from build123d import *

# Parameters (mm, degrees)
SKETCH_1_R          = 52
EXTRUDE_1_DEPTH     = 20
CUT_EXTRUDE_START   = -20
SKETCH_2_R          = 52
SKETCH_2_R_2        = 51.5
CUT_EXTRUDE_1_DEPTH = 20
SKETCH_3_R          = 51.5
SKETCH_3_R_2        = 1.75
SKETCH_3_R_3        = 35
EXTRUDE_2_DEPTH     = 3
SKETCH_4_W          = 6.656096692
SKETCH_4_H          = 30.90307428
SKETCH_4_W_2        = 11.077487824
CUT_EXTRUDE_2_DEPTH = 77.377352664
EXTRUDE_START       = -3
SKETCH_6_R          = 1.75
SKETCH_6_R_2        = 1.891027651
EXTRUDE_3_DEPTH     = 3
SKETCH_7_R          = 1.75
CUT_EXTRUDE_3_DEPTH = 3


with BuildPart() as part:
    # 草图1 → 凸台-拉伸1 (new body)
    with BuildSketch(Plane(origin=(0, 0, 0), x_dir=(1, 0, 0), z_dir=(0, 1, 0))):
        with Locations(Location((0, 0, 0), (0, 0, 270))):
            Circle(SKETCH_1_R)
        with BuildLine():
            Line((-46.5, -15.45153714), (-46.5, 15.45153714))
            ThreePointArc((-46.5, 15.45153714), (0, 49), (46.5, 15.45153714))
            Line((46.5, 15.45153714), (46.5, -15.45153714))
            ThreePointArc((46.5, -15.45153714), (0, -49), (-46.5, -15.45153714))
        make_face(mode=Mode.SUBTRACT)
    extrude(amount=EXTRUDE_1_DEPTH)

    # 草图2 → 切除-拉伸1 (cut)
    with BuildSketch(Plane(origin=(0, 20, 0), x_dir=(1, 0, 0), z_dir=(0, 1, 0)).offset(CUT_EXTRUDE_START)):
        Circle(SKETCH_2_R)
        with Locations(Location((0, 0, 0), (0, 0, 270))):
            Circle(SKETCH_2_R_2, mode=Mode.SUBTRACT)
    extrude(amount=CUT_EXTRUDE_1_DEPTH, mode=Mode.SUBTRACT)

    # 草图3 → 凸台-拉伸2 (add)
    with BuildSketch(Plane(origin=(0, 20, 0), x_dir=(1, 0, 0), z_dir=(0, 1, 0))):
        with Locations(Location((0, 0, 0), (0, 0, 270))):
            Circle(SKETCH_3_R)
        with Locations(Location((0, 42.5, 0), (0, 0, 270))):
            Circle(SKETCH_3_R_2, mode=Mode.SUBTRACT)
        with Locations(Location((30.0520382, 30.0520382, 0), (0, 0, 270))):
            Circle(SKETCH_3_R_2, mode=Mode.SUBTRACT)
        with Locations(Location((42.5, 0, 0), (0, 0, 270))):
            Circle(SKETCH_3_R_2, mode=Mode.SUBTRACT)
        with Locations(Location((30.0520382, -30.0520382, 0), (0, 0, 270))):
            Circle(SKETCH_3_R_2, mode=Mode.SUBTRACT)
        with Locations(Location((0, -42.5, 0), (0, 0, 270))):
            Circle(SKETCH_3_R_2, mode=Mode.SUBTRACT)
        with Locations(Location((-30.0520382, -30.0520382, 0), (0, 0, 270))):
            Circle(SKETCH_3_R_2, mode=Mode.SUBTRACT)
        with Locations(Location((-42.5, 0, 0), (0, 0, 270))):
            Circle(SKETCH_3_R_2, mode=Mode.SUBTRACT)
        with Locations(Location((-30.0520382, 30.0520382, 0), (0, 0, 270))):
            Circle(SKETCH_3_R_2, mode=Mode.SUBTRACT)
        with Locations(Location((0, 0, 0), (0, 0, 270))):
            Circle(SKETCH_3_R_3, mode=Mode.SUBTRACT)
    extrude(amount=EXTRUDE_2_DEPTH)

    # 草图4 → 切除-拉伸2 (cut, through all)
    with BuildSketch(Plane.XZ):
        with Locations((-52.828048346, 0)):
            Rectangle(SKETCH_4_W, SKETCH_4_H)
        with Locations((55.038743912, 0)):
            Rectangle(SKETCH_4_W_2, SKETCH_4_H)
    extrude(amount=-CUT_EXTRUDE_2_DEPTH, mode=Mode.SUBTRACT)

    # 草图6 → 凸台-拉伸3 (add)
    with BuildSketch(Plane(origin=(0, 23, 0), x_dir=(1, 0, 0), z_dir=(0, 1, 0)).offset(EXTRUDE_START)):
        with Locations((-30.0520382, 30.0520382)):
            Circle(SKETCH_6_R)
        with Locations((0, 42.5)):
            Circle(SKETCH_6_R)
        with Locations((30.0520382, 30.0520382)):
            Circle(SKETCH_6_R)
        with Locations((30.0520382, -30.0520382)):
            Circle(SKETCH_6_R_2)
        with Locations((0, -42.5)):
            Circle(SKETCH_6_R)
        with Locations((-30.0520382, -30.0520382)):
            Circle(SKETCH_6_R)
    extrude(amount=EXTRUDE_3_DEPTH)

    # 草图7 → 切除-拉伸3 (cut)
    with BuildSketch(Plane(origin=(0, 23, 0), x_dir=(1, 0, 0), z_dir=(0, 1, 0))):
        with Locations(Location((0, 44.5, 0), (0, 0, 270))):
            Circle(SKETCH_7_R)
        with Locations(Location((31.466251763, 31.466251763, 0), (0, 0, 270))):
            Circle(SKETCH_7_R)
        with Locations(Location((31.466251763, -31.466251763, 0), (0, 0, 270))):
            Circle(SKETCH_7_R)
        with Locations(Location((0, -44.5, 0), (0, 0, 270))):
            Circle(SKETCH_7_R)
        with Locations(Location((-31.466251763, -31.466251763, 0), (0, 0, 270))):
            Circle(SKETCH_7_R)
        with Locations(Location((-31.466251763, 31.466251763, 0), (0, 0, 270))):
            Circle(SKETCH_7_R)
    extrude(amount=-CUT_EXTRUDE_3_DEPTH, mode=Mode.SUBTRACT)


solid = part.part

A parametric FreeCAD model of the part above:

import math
import FreeCAD as App
import Part
import Sketcher

V = App.Vector
Q = App.Units.Quantity

doc = App.newDocument("Part")
body = doc.addObject("PartDesign::Body", "Body")

# Sketch on XZ plane
sketch1 = doc.addObject("Sketcher::SketchObject", "Sketch")
body.addObject(sketch1)
sketch1.AttachmentSupport = (doc.XZ_Plane, [""])
sketch1.MapMode = "FlatFace"
sketch1.addGeometry([
    Part.Circle(V(0, 0, 0), V(0, 0, 1), 52),  # 0
    Part.ArcOfCircle(Part.Circle(V(0, 0, 0), V(0, 0, 1), 49), math.radians(18), math.radians(162)),  # 1
    Part.LineSegment(V(-46, 15, 0), V(-46, -15, 0)),  # 2
    Part.ArcOfCircle(Part.Circle(V(0, 0, 0), V(0, 0, 1), 49), math.radians(-162), math.radians(-18)),  # 3
    Part.LineSegment(V(46, -15, 0), V(46, 15, 0)),  # 4
], False)
sketch1.addConstraint([
    Sketcher.Constraint("Coincident", 1, 2, 2, 1),
    Sketcher.Constraint("Coincident", 2, 2, 3, 1),
    Sketcher.Constraint("Coincident", 3, 2, 4, 1),
    Sketcher.Constraint("Coincident", 4, 2, 1, 1),
    Sketcher.Constraint("Vertical", 2),
    Sketcher.Constraint("Vertical", 4),
    Sketcher.Constraint("Coincident", 0, 3, -1, 1),
    Sketcher.Constraint("Coincident", 1, 3, -1, 1),
    Sketcher.Constraint("Coincident", 3, 3, -1, 1),
    Sketcher.Constraint("Equal", 1, 3),
    Sketcher.Constraint("Horizontal", 2, 2, 3, 2),
    Sketcher.Constraint("Diameter", 0, Q("104 mm")),
    Sketcher.Constraint("Radius", 1, Q("49 mm")),
    Sketcher.Constraint("DistanceX", 2, 2, 3, 2, Q("93 mm")),
])
pad1 = doc.addObject("PartDesign::Pad", "Pad")
body.addObject(pad1)
pad1.Profile = sketch1
pad1.Length = 20
pad1.Reversed = True

# Sketch on XZ plane
sketch2 = doc.addObject("Sketcher::SketchObject", "Sketch001")
body.addObject(sketch2)
sketch2.AttachmentSupport = (doc.XZ_Plane, [""])
sketch2.MapMode = "FlatFace"
sketch2.addGeometry([
    Part.Circle(V(0, 0, 0), V(0, 0, 1), 52),
    Part.Circle(V(0, 0, 0), V(0, 0, 1), 52),
], False)
sketch2.addConstraint([
    Sketcher.Constraint("Coincident", 0, 3, -1, 1),
    Sketcher.Constraint("Coincident", 1, 3, -1, 1),
    Sketcher.Constraint("Diameter", 0, Q("104 mm")),
    Sketcher.Constraint("Diameter", 1, Q("103 mm")),
])
pocket1 = doc.addObject("PartDesign::Pocket", "Pocket")
body.addObject(pocket1)
pocket1.Profile = sketch2
pocket1.Length = 20

# Sketch on XZ plane
sketch3 = doc.addObject("Sketcher::SketchObject", "Sketch002")
body.addObject(sketch3)
sketch3.AttachmentSupport = (doc.XZ_Plane, [""])
sketch3.MapMode = "FlatFace"
sketch3.AttachmentOffset = App.Placement(V(0, 0, -20), App.Rotation())
sketch3.addGeometry([
    Part.Circle(V(0, 0, 0), V(0, 0, 1), 51.5),  # 0
    Part.Circle(V(-30.1, -30.1, 0), V(0, 0, 1), 1.8),  # 1
    Part.Circle(V(0, -42.5, 0), V(0, 0, 1), 1.8),  # 2
    Part.Circle(V(-42.5, 0, 0), V(0, 0, 1), 1.8),  # 3
    Part.Circle(V(-30.1, 30.1, 0), V(0, 0, 1), 1.8),  # 4
    Part.Circle(V(30.1, -30.1, 0), V(0, 0, 1), 1.8),  # 5
    Part.Circle(V(42.5, 0, 0), V(0, 0, 1), 1.8),  # 6
    Part.Circle(V(0, 0, 0), V(0, 0, 1), 35),  # 7
    Part.Circle(V(0, 42.5, 0), V(0, 0, 1), 1.8),  # 8
    Part.Circle(V(30.1, 30.1, 0), V(0, 0, 1), 1.8),  # 9
], False)
sketch3.addConstraint([
    Sketcher.Constraint("Coincident", 0, 3, -1, 1),
    Sketcher.Constraint("Coincident", 7, 3, -1, 1),
    Sketcher.Constraint("Equal", 1, 2),
    Sketcher.Constraint("Equal", 2, 3),
    Sketcher.Constraint("Equal", 3, 4),
    Sketcher.Constraint("Equal", 4, 5),
    Sketcher.Constraint("Equal", 5, 6),
    Sketcher.Constraint("Equal", 6, 8),
    Sketcher.Constraint("Equal", 8, 9),
    Sketcher.Constraint("Symmetric", 4, 3, 5, 3, -1, 1),
    Sketcher.Constraint("Symmetric", 3, 3, 6, 3, -1, 1),
    Sketcher.Constraint("Symmetric", 2, 3, 8, 3, -1, 1),
    Sketcher.Constraint("Symmetric", 1, 3, 9, 3, -1, 1),
    Sketcher.Constraint("Symmetric", 1, 3, 5, 3, -2),
    Sketcher.Constraint("PointOnObject", 2, 3, -2),
    Sketcher.Constraint("PointOnObject", 3, 3, -1),
    Sketcher.Constraint("Diameter", 0, Q("103 mm")),
    Sketcher.Constraint("Diameter", 7, Q("70 mm")),
    Sketcher.Constraint("Diameter", 1, Q("3.5 mm")),
    Sketcher.Constraint("DistanceY", 2, 3, -1, 1, Q("42.5 mm")),
    Sketcher.Constraint("DistanceX", 3, 3, -1, 1, Q("42.5 mm")),
    Sketcher.Constraint("DistanceX", 1, 3, -1, 1, Q("30.052038 mm")),
    Sketcher.Constraint("DistanceY", 1, 3, -1, 1, Q("30.052038 mm")),
])
pad2 = doc.addObject("PartDesign::Pad", "Pad001")
body.addObject(pad2)
pad2.Profile = sketch3
pad2.Length = 3
pad2.Reversed = True

# Sketch on XZ plane
sketch4 = doc.addObject("Sketcher::SketchObject", "Sketch003")
body.addObject(sketch4)
sketch4.AttachmentSupport = (doc.XZ_Plane, [""])
sketch4.MapMode = "FlatFace"
sketch4.addGeometry([
    Part.LineSegment(V(-56, 15, 0), V(-56, -15, 0)),  # 0
    Part.LineSegment(V(-56, -15, 0), V(-50, -15, 0)),  # 1
    Part.LineSegment(V(-50, -15, 0), V(-50, 15, 0)),  # 2
    Part.LineSegment(V(-50, 15, 0), V(-56, 15, 0)),  # 3
    Part.LineSegment(V(50, 15, 0), V(50, -15, 0)),  # 4
    Part.LineSegment(V(50, -15, 0), V(61, -15, 0)),  # 5
    Part.LineSegment(V(61, -15, 0), V(61, 15, 0)),  # 6
    Part.LineSegment(V(61, 15, 0), V(50, 15, 0)),  # 7
], False)
sketch4.addConstraint([
    Sketcher.Constraint("Coincident", 0, 2, 1, 1),
    Sketcher.Constraint("Coincident", 1, 2, 2, 1),
    Sketcher.Constraint("Coincident", 2, 2, 3, 1),
    Sketcher.Constraint("Coincident", 3, 2, 0, 1),
    Sketcher.Constraint("Coincident", 4, 2, 5, 1),
    Sketcher.Constraint("Coincident", 5, 2, 6, 1),
    Sketcher.Constraint("Coincident", 6, 2, 7, 1),
    Sketcher.Constraint("Coincident", 7, 2, 4, 1),
    Sketcher.Constraint("Vertical", 0),
    Sketcher.Constraint("Horizontal", 1),
    Sketcher.Constraint("Vertical", 2),
    Sketcher.Constraint("Horizontal", 3),
    Sketcher.Constraint("Vertical", 4),
    Sketcher.Constraint("Horizontal", 5),
    Sketcher.Constraint("Vertical", 6),
    Sketcher.Constraint("Horizontal", 7),
    Sketcher.Constraint("Symmetric", 2, 2, 4, 2, -1, 1),
    Sketcher.Constraint("Horizontal", 1, 2, 4, 2),
    Sketcher.Constraint("Horizontal", 3, 2, 6, 2),
    Sketcher.Constraint("DistanceX", 1, 2, 4, 2, Q("99 mm")),
    Sketcher.Constraint("DistanceX", 1, 1, 1, 2, Q("6.656097 mm")),
    Sketcher.Constraint("DistanceX", 5, 1, 5, 2, Q("11.077488 mm")),
    Sketcher.Constraint("DistanceY", 0, 2, 0, 1, Q("30.903074 mm")),
])
pocket2 = doc.addObject("PartDesign::Pocket", "Pocket001")
body.addObject(pocket2)
pocket2.Profile = sketch4
pocket2.Type = "ThroughAll"

# Sketch on XZ plane
sketch5 = doc.addObject("Sketcher::SketchObject", "Sketch004")
body.addObject(sketch5)
sketch5.AttachmentSupport = (doc.XZ_Plane, [""])
sketch5.MapMode = "FlatFace"
sketch5.AttachmentOffset = App.Placement(V(0, 0, -20), App.Rotation())
sketch5.addGeometry([
    Part.Circle(V(-30.1, -30.1, 0), V(0, 0, 1), 1.8),  # 0
    Part.Circle(V(0, -42.5, 0), V(0, 0, 1), 1.8),  # 1
    Part.Circle(V(30.1, -30.1, 0), V(0, 0, 1), 1.8),  # 2
    Part.Circle(V(30.1, 30.1, 0), V(0, 0, 1), 1.9),  # 3
    Part.Circle(V(0, 42.5, 0), V(0, 0, 1), 1.8),  # 4
    Part.Circle(V(-30.1, 30.1, 0), V(0, 0, 1), 1.8),  # 5
], False)
sketch5.addConstraint([
    Sketcher.Constraint("Equal", 0, 1),
    Sketcher.Constraint("Equal", 1, 2),
    Sketcher.Constraint("Equal", 2, 4),
    Sketcher.Constraint("Equal", 4, 5),
    Sketcher.Constraint("Symmetric", 0, 3, 3, 3, -1, 1),
    Sketcher.Constraint("Symmetric", 1, 3, 4, 3, -1, 1),
    Sketcher.Constraint("Symmetric", 2, 3, 5, 3, -1, 1),
    Sketcher.Constraint("Symmetric", 0, 3, 2, 3, -2),
    Sketcher.Constraint("PointOnObject", 1, 3, -2),
    Sketcher.Constraint("Diameter", 0, Q("3.5 mm")),
    Sketcher.Constraint("DistanceY", 1, 3, 4, 3, Q("85 mm")),
    Sketcher.Constraint("Diameter", 3, Q("3.782055 mm")),
    Sketcher.Constraint("DistanceX", 0, 3, -1, 1, Q("30.052038 mm")),
    Sketcher.Constraint("DistanceY", 0, 3, -1, 1, Q("30.052038 mm")),
])
pad3 = doc.addObject("PartDesign::Pad", "Pad002")
body.addObject(pad3)
pad3.Profile = sketch5
pad3.Length = 3
pad3.Reversed = True

# Sketch on XZ plane
sketch6 = doc.addObject("Sketcher::SketchObject", "Sketch005")
body.addObject(sketch6)
sketch6.AttachmentSupport = (doc.XZ_Plane, [""])
sketch6.MapMode = "FlatFace"
sketch6.AttachmentOffset = App.Placement(V(0, 0, -23), App.Rotation())
sketch6.addGeometry([
    Part.Circle(V(0, -44.5, 0), V(0, 0, 1), 1.8),  # 0
    Part.Circle(V(31.5, -31.5, 0), V(0, 0, 1), 1.8),  # 1
    Part.Circle(V(31.5, 31.5, 0), V(0, 0, 1), 1.8),  # 2
    Part.Circle(V(0, 44.5, 0), V(0, 0, 1), 1.8),  # 3
    Part.Circle(V(-31.5, 31.5, 0), V(0, 0, 1), 1.8),  # 4
    Part.Circle(V(-31.5, -31.5, 0), V(0, 0, 1), 1.8),  # 5
], False)
sketch6.addConstraint([
    Sketcher.Constraint("Equal", 0, 1),
    Sketcher.Constraint("Equal", 1, 2),
    Sketcher.Constraint("Equal", 2, 3),
    Sketcher.Constraint("Equal", 3, 4),
    Sketcher.Constraint("Equal", 4, 5),
    Sketcher.Constraint("Symmetric", 0, 3, 3, 3, -1, 1),
    Sketcher.Constraint("Symmetric", 1, 3, 4, 3, -1, 1),
    Sketcher.Constraint("Symmetric", 2, 3, 5, 3, -1, 1),
    Sketcher.Constraint("Symmetric", 2, 3, 4, 3, -2),
    Sketcher.Constraint("PointOnObject", 0, 3, -2),
    Sketcher.Constraint("Diameter", 0, Q("3.5 mm")),
    Sketcher.Constraint("DistanceY", 0, 3, 3, 3, Q("89 mm")),
    Sketcher.Constraint("DistanceX", -1, 1, 1, 3, Q("31.466252 mm")),
    Sketcher.Constraint("DistanceY", 1, 3, -1, 1, Q("31.466252 mm")),
])
pocket3 = doc.addObject("PartDesign::Pocket", "Pocket002")
body.addObject(pocket3)
pocket3.Profile = sketch6
pocket3.Length = 3
pocket3.Reversed = True

doc.recompute()
